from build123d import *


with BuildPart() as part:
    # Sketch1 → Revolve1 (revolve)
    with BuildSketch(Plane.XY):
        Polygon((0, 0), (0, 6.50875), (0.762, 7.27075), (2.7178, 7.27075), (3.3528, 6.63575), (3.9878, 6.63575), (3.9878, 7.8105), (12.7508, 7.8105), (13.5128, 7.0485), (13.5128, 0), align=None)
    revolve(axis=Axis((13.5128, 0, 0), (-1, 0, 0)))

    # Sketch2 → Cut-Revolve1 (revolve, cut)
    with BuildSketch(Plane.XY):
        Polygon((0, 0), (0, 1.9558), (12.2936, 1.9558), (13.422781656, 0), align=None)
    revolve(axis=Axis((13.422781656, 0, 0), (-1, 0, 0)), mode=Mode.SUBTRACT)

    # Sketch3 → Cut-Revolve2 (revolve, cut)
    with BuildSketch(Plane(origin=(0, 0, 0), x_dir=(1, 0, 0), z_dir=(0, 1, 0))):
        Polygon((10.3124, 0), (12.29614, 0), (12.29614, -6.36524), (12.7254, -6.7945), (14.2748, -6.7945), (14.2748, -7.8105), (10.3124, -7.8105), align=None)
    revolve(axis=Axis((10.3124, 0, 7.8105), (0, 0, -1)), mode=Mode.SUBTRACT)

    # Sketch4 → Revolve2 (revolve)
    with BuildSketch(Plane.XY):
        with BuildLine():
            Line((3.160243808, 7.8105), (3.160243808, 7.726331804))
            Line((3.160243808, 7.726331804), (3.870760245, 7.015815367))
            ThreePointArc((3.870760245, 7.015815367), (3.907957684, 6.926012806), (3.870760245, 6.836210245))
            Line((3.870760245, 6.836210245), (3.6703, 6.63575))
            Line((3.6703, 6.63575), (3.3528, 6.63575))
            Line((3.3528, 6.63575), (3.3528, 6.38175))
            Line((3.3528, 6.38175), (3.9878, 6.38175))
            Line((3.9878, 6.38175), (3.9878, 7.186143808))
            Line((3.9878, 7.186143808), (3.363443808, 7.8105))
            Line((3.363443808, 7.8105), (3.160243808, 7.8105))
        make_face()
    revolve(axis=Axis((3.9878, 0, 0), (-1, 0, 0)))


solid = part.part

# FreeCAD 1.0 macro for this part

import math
import FreeCAD as App
import Part
import Sketcher
from FreeCAD import Vector
Q = App.Units.Quantity

doc = App.newDocument("Part")
body = doc.addObject("PartDesign::Body", "Body")

sketch1 = body.newObject("Sketcher::SketchObject", "Sketch")
sketch1.AttachmentSupport = (doc.getObject("XY_Plane"), [""])
sketch1.MapMode = "FlatFace"
sketch1.addGeometry([
    Part.LineSegment(Vector(0, 6.5, 0), Vector(0, 0, 0)),
    Part.LineSegment(Vector(0, 0, 0), Vector(13.5, 0, 0)),
    Part.LineSegment(Vector(13.5, 0, 0), Vector(13.5, 7, 0)),
    Part.LineSegment(Vector(13.5, 7, 0), Vector(12.8, 7.8, 0)),
    Part.LineSegment(Vector(12.8, 7.8, 0), Vector(4, 7.8, 0)),
    Part.LineSegment(Vector(4, 7.8, 0), Vector(4, 6.6, 0)),
    Part.LineSegment(Vector(4, 6.6, 0), Vector(3.4, 6.6, 0)),
    Part.LineSegment(Vector(3.4, 6.6, 0), Vector(2.7, 7.3, 0)),
    Part.LineSegment(Vector(2.7, 7.3, 0), Vector(0.8, 7.3, 0)),
    Part.LineSegment(Vector(0.8, 7.3, 0), Vector(0, 6.5, 0)),
], False)
sketch1.addConstraint([
    Sketcher.Constraint("Coincident", 0, 2, 1, 1),
    Sketcher.Constraint("Coincident", 1, 2, 2, 1),
    Sketcher.Constraint("Coincident", 2, 2, 3, 1),
    Sketcher.Constraint("Coincident", 3, 2, 4, 1),
    Sketcher.Constraint("Coincident", 4, 2, 5, 1),
    Sketcher.Constraint("Coincident", 5, 2, 6, 1),
    Sketcher.Constraint("Coincident", 6, 2, 7, 1),
    Sketcher.Constraint("Coincident", 7, 2, 8, 1),
    Sketcher.Constraint("Coincident", 8, 2, 9, 1),
    Sketcher.Constraint("Coincident", 9, 2, 0, 1),
    Sketcher.Constraint("Vertical", 0),
    Sketcher.Constraint("Horizontal", 1),
    Sketcher.Constraint("Vertical", 2),
    Sketcher.Constraint("Horizontal", 4),
    Sketcher.Constraint("Vertical", 5),
    Sketcher.Constraint("Horizontal", 6),
    Sketcher.Constraint("Horizontal", 8),
    Sketcher.Constraint("Coincident", 0, 2, -1, 1),
    Sketcher.Constraint("Parallel", 3, 7),
    Sketcher.Constraint("Perpendicular", 7, 9),
    Sketcher.Constraint("Equal", 3, 9),
    Sketcher.Constraint("Angle", 3, Q("135 deg")),
    Sketcher.Constraint("DistanceX", 6, 2, 2, 2, Q("0.4 in")),
    Sketcher.Constraint("DistanceX", 1, 1, 1, 2, Q("0.532 in")),
    Sketcher.Constraint("DistanceX", 4, 2, 4, 1, Q("0.345 in")),
    Sketcher.Constraint("DistanceX", 6, 2, 6, 1, Q("0.025 in")),
    Sketcher.Constraint("DistanceX", 8, 2, 8, 1, Q("0.077 in")),
    Sketcher.Constraint("DistanceY", 2, 1, 2, 2, Q("0.2775 in")),
    Sketcher.Constraint("DistanceY", 0, 2, 0, 1, Q("6.50875 mm")),
])
revolution = body.newObject("PartDesign::Revolution", "Revolution")
revolution.Profile = sketch1
revolution.ReferenceAxis = (sketch1, ["H_Axis"])
revolution.Angle = 360

sketch2 = body.newObject("Sketcher::SketchObject", "Sketch001")
sketch2.AttachmentSupport = (doc.getObject("XY_Plane"), [""])
sketch2.MapMode = "FlatFace"
sketch2.addGeometry([
    Part.LineSegment(Vector(0, 2, 0), Vector(0, 0, 0)),
    Part.LineSegment(Vector(0, 0, 0), Vector(13.4, 0, 0)),
    Part.LineSegment(Vector(13.4, 0, 0), Vector(12.3, 2, 0)),
    Part.LineSegment(Vector(12.3, 2, 0), Vector(0, 2, 0)),
], False)
sketch2.addConstraint([
    Sketcher.Constraint("Coincident", 0, 2, 1, 1),
    Sketcher.Constraint("Coincident", 1, 2, 2, 1),
    Sketcher.Constraint("Coincident", 2, 2, 3, 1),
    Sketcher.Constraint("Coincident", 3, 2, 0, 1),
    Sketcher.Constraint("Vertical", 0),
    Sketcher.Constraint("Horizontal", 1),
    Sketcher.Constraint("Horizontal", 3),
    Sketcher.Constraint("Coincident", 0, 2, -1, 1),
    Sketcher.Constraint("Angle", 2, Q("120 deg")),
    Sketcher.Constraint("DistanceX", 3, 2, 3, 1, Q("0.484 in")),
    Sketcher.Constraint("DistanceY", 0, 2, 0, 1, Q("0.077 in")),
])
groove = body.newObject("PartDesign::Groove", "Groove")
groove.Profile = sketch2
groove.ReferenceAxis = (sketch2, ["H_Axis"])
groove.Angle = 360

sketch3 = body.newObject("Sketcher::SketchObject", "Sketch002")
sketch3.AttachmentSupport = (doc.getObject("XZ_Plane"), [""])
sketch3.MapMode = "FlatFace"
sketch3.addGeometry([
    Part.LineSegment(Vector(12.3, 0, 0), Vector(10.3, 0, 0)),
    Part.LineSegment(Vector(10.3, 0, 0), Vector(10.3, 7.8, 0)),
    Part.LineSegment(Vector(10.3, 7.8, 0), Vector(14.3, 7.8, 0)),
    Part.LineSegment(Vector(14.3, 7.8, 0), Vector(14.3, 6.8, 0)),
    Part.LineSegment(Vector(14.3, 6.8, 0), Vector(12.7, 6.8, 0)),
    Part.LineSegment(Vector(12.7, 6.8, 0), Vector(12.3, 6.4, 0)),
    Part.LineSegment(Vector(12.3, 6.4, 0), Vector(12.3, 0, 0)),
], False)
sketch3.addGeometry(Part.LineSegment(Vector(10.3, 7.8, 0), Vector(10.3, 0, 0)), True)
sketch3.addConstraint([
    Sketcher.Constraint("Coincident", 0, 2, 1, 1),
    Sketcher.Constraint("Coincident", 1, 2, 2, 1),
    Sketcher.Constraint("Coincident", 2, 2, 3, 1),
    Sketcher.Constraint("Coincident", 3, 2, 4, 1),
    Sketcher.Constraint("Coincident", 4, 2, 5, 1),
    Sketcher.Constraint("Coincident", 5, 2, 6, 1),
    Sketcher.Constraint("Coincident", 6, 2, 0, 1),
    Sketcher.Constraint("Horizontal", 0),
    Sketcher.Constraint("Vertical", 1),
    Sketcher.Constraint("Horizontal", 2),
    Sketcher.Constraint("Vertical", 3),
    Sketcher.Constraint("Horizontal", 4),
    Sketcher.Constraint("Vertical", 6),
    Sketcher.Constraint("Vertical", 7),
    Sketcher.Constraint("Coincident", 7, 1, 1, 2),
    Sketcher.Constraint("PointOnObject", 0, 2, -1),
    Sketcher.Constraint("PointOnObject", 7, 2, -1),
    Sketcher.Constraint("Angle", 5, Q("-135 deg")),
    Sketcher.Constraint("DistanceY", 3, 2, 3, 1, Q("0.04 in")),
    Sketcher.Constraint("DistanceX", 2, 1, 2, 2, Q("0.156 in")),
    Sketcher.Constraint("DistanceX", 4, 2, 4, 1, Q("0.061 in")),
    Sketcher.Constraint("DistanceX", 0, 2, 0, 1, Q("0.0781 in")),
    Sketcher.Constraint("DistanceY", 1, 1, 1, 2, Q("0.3075 in")),
    Sketcher.Constraint("DistanceX", -1, 1, 0, 2, Q("0.406 in")),
])
groove2 = body.newObject("PartDesign::Groove", "Groove001")
groove2.Profile = sketch3
groove2.ReferenceAxis = (sketch3, ["Axis0"])
groove2.Angle = 360

sketch4 = body.newObject("Sketcher::SketchObject", "Sketch003")
sketch4.AttachmentSupport = (doc.getObject("XY_Plane"), [""])
sketch4.MapMode = "FlatFace"
sketch4.addGeometry([
    Part.LineSegment(Vector(3.16, 7.81, 0), Vector(3.16, 7.73, 0)),
    Part.LineSegment(Vector(3.16, 7.73, 0), Vector(3.87, 7.02, 0)),
    Part.ArcOfCircle(Part.Circle(Vector(3.78, 6.93, 0), Vector(0, 0, 1), 0.13), math.radians(-45), math.radians(45)),
    Part.LineSegment(Vector(3.87, 6.84, 0), Vector(3.67, 6.64, 0)),
    Part.LineSegment(Vector(3.67, 6.64, 0), Vector(3.35, 6.64, 0)),
    Part.LineSegment(Vector(3.35, 6.64, 0), Vector(3.35, 6.38, 0)),
    Part.LineSegment(Vector(3.35, 6.38, 0), Vector(3.99, 6.38, 0)),
    Part.LineSegment(Vector(3.99, 6.38, 0), Vector(3.99, 7.19, 0)),
    Part.LineSegment(Vector(3.99, 7.19, 0), Vector(3.36, 7.81, 0)),
    Part.LineSegment(Vector(3.36, 7.81, 0), Vector(3.16, 7.81, 0)),
], False)
sketch4.addConstraint([
    Sketcher.Constraint("Coincident", 0, 2, 1, 1),
    Sketcher.Constraint("Tangent", 1, 2, 2, 2),
    Sketcher.Constraint("Tangent", 2, 1, 3, 1),
    Sketcher.Constraint("Coincident", 3, 2, 4, 1),
    Sketcher.Constraint("Coincident", 4, 2, 5, 1),
    Sketcher.Constraint("Coincident", 5, 2, 6, 1),
    Sketcher.Constraint("Coincident", 6, 2, 7, 1),
    Sketcher.Constraint("Coincident", 7, 2, 8, 1),
    Sketcher.Constraint("Coincident", 8, 2, 9, 1),
    Sketcher.Constraint("Coincident", 9, 2, 0, 1),
    Sketcher.Constraint("Vertical", 0),
    Sketcher.Constraint("Horizontal", 4),
    Sketcher.Constraint("Vertical", 5),
    Sketcher.Constraint("Horizontal", 6),
    Sketcher.Constraint("Vertical", 7),
    Sketcher.Constraint("Horizontal", 9),
    Sketcher.Constraint("Perpendicular", 1, 3),
    Sketcher.Constraint("Perpendicular", 3, 8),
    Sketcher.Constraint("Vertical", 1, 2, 2, 1),
    Sketcher.Constraint("Radius", 2, Q("0.005 in")),
    Sketcher.Constraint("DistanceY", 5, 2, 5, 1, Q("0.01 in")),
    Sketcher.Constraint("DistanceX", 6, 1, 6, 2, Q("0.025 in")),
    Sketcher.Constraint("DistanceX", 9, 2, 9, 1, Q("0.008 in")),
    Sketcher.Constraint("DistanceX", 4, 2, 4, 1, Q("0.0125 in")),
    Sketcher.Constraint("DistanceX", -1, 1, 4, 2, Q("0.132 in")),
    Sketcher.Constraint("DistanceY", -1, 1, 8, 2, Q("0.3075 in")),
    Sketcher.Constraint("DistanceY", 0, 2, 0, 1, Q("0.084168 mm")),
    Sketcher.Constraint("Distance", 1, Q("1.004822 mm")),
    Sketcher.Constraint("DistanceY", 7, 1, 7, 2, Q("0.804394 mm")),
])
revolution2 = body.newObject("PartDesign::Revolution", "Revolution001")
revolution2.Profile = sketch4
revolution2.ReferenceAxis = (sketch4, ["H_Axis"])
revolution2.Angle = 360

doc.recompute()
